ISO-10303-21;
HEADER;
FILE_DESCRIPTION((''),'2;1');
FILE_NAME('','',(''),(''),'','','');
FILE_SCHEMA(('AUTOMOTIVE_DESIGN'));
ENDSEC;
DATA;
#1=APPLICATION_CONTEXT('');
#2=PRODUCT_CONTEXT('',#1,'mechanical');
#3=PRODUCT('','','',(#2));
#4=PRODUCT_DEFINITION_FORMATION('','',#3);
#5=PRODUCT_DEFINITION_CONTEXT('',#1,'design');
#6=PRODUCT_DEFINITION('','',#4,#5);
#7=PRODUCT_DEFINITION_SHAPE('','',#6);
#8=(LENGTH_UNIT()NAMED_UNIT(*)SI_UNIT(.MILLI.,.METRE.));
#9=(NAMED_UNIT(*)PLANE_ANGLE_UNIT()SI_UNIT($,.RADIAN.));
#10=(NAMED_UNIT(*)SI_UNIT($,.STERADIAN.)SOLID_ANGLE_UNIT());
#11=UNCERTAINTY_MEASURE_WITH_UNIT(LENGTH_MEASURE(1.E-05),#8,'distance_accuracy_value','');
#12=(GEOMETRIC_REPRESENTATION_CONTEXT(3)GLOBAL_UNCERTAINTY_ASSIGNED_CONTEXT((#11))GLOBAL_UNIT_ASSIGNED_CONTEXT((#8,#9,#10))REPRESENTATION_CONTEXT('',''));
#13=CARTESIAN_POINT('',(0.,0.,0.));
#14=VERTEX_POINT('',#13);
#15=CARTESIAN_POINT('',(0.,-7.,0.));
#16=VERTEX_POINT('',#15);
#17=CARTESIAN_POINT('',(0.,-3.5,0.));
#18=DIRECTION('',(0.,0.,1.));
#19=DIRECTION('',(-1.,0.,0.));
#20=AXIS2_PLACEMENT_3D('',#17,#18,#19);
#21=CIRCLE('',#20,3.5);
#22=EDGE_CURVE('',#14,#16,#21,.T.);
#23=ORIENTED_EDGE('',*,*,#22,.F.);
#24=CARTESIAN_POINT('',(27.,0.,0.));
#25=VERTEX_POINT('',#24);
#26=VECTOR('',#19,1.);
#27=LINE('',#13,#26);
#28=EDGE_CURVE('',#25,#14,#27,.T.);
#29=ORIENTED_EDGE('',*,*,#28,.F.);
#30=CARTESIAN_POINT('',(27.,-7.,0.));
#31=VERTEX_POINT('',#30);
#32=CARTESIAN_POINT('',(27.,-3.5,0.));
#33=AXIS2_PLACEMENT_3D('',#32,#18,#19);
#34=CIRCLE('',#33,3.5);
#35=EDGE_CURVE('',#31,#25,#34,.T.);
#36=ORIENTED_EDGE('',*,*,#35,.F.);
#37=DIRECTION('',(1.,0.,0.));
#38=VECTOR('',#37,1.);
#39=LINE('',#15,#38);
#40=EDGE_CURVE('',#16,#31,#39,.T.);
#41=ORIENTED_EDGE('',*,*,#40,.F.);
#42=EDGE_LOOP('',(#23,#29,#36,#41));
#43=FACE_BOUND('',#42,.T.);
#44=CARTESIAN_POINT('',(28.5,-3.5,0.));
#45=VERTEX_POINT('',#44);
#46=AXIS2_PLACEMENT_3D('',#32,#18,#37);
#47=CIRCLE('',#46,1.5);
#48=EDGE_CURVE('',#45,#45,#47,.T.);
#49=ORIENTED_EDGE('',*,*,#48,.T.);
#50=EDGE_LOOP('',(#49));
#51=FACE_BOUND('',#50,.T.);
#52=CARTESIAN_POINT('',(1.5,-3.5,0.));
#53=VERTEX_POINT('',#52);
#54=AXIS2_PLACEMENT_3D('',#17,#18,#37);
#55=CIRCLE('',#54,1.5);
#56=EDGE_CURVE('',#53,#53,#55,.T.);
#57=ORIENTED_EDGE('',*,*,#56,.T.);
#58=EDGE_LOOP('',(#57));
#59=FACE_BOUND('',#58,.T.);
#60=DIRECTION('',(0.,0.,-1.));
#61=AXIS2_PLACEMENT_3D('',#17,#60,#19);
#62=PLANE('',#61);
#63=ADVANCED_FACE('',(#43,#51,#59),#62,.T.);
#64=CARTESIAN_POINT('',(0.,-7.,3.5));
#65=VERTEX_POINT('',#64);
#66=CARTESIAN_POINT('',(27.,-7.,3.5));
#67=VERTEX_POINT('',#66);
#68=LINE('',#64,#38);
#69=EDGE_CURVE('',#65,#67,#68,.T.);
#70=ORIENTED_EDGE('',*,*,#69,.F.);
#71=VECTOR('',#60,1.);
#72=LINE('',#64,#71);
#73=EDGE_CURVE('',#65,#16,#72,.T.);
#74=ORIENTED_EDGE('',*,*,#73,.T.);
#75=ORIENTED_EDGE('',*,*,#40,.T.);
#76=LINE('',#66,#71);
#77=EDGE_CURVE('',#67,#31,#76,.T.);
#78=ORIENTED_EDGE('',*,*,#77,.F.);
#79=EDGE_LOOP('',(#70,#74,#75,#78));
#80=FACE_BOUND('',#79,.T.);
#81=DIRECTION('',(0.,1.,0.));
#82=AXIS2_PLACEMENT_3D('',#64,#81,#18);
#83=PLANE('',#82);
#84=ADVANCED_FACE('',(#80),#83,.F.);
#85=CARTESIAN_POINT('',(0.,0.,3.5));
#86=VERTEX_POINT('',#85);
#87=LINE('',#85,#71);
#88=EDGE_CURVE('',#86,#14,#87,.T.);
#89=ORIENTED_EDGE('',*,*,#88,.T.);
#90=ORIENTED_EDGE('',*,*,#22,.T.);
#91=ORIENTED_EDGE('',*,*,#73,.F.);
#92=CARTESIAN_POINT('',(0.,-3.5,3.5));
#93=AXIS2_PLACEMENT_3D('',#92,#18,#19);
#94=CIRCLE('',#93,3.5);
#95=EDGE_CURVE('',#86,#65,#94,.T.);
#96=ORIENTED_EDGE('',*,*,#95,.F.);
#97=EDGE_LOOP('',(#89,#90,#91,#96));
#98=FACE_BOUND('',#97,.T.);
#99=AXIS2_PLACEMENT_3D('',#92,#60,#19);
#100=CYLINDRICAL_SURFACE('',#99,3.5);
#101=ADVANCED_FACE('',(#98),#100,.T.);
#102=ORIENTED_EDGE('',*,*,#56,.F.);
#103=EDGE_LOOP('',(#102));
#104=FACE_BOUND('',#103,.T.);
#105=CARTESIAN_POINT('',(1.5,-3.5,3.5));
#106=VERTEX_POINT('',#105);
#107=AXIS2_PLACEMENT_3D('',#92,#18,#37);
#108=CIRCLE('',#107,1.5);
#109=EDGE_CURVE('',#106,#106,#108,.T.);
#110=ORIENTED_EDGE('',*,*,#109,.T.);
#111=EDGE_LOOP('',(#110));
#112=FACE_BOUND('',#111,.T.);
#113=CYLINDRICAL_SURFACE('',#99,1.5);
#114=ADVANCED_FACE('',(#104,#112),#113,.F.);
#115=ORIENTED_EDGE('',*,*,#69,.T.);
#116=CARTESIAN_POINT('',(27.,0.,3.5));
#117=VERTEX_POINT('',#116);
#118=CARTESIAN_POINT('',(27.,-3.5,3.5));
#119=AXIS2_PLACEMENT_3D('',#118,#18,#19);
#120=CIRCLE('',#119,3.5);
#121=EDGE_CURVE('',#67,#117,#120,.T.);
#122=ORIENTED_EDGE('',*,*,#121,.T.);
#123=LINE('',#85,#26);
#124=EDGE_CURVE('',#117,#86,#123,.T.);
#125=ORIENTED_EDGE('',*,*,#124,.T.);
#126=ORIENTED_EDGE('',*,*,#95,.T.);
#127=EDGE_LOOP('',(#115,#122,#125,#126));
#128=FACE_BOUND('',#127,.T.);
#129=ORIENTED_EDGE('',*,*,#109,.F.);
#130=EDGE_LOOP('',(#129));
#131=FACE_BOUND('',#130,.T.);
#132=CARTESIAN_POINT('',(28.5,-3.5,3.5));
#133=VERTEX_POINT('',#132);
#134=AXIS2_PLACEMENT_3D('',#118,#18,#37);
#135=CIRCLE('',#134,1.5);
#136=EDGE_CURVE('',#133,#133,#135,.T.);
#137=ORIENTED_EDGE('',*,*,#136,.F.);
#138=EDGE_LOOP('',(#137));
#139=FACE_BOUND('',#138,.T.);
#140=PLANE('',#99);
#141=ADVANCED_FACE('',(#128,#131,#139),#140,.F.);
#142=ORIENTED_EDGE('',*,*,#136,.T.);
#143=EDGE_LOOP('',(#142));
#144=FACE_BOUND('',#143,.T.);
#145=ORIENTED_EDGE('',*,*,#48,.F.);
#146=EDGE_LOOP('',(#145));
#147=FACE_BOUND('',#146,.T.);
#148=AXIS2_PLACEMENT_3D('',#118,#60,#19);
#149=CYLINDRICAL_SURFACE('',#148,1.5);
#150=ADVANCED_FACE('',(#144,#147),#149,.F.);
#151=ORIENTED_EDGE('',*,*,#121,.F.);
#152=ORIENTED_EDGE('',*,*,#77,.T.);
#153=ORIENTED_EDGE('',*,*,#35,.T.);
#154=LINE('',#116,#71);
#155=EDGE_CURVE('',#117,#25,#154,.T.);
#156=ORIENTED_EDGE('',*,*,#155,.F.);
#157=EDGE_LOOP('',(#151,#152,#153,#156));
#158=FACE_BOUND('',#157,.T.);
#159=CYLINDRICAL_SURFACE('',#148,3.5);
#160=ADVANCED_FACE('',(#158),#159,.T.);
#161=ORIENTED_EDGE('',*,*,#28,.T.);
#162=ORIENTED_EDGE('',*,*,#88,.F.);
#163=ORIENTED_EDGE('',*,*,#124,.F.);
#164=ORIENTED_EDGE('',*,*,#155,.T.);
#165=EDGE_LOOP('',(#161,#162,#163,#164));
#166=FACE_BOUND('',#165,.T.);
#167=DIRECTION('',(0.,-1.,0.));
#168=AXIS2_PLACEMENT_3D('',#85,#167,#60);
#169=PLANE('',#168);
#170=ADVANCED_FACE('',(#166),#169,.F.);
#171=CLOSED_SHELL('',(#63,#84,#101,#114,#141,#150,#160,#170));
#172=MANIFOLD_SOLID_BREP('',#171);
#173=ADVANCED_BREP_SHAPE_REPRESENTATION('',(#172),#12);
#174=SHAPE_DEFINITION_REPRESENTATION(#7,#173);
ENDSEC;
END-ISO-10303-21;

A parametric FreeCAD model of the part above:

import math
import FreeCAD as App
import Part
import Sketcher
from FreeCAD import Vector

doc = App.newDocument("Part")
body = doc.addObject("PartDesign::Body", "Body")

# Sketch on XY plane
sketch1 = doc.addObject("Sketcher::SketchObject", "Sketch")
body.addObject(sketch1)
sketch1.AttachmentSupport = (doc.XY_Plane, [""])
sketch1.MapMode = "FlatFace"
sketch1.addGeometry(Part.LineSegment(Vector(27, 0, 0), Vector(0, 0, 0)), False)
sketch1.addGeometry(Part.ArcOfCircle(Part.Circle(Vector(0, -3.5, 0), Vector(0, 0, 1), 3.5), math.radians(90), math.radians(270)), False)
sketch1.addGeometry(Part.LineSegment(Vector(0, -7, 0), Vector(27, -7, 0)), False)
sketch1.addGeometry(Part.ArcOfCircle(Part.Circle(Vector(27, -3.5, 0), Vector(0, 0, 1), 3.5), math.radians(-90), math.radians(90)), False)
sketch1.addGeometry(Part.Circle(Vector(27, -3.5, 0), Vector(0, 0, 1), 1.5), False)
sketch1.addGeometry(Part.Circle(Vector(0, -3.5, 0), Vector(0, 0, 1), 1.5), False)
sketch1.addConstraint(Sketcher.Constraint("Tangent", 0, 2, 1, 1))
sketch1.addConstraint(Sketcher.Constraint("Tangent", 1, 2, 2, 1))
sketch1.addConstraint(Sketcher.Constraint("Tangent", 2, 2, 3, 1))
sketch1.addConstraint(Sketcher.Constraint("Tangent", 3, 2, 0, 1))
sketch1.addConstraint(Sketcher.Constraint("Horizontal", 0))
sketch1.addConstraint(Sketcher.Constraint("Horizontal", 2))
sketch1.addConstraint(Sketcher.Constraint("Coincident", 0, 2, -1, 1))
sketch1.addConstraint(Sketcher.Constraint("Coincident", 4, 3, 3, 3))
sketch1.addConstraint(Sketcher.Constraint("Coincident", 5, 3, 1, 3))
sketch1.addConstraint(Sketcher.Constraint("Equal", 4, 5))
sketch1.addConstraint(Sketcher.Constraint("Diameter", 4, 3.0))
sketch1.addConstraint(Sketcher.Constraint("Radius", 1, 3.5))
sketch1.addConstraint(Sketcher.Constraint("DistanceX", 0, 2, 0, 1, 27.0))
pad1 = doc.addObject("PartDesign::Pad", "Pad")
body.addObject(pad1)
pad1.Profile = sketch1
pad1.Length = 3.5

doc.recompute()
